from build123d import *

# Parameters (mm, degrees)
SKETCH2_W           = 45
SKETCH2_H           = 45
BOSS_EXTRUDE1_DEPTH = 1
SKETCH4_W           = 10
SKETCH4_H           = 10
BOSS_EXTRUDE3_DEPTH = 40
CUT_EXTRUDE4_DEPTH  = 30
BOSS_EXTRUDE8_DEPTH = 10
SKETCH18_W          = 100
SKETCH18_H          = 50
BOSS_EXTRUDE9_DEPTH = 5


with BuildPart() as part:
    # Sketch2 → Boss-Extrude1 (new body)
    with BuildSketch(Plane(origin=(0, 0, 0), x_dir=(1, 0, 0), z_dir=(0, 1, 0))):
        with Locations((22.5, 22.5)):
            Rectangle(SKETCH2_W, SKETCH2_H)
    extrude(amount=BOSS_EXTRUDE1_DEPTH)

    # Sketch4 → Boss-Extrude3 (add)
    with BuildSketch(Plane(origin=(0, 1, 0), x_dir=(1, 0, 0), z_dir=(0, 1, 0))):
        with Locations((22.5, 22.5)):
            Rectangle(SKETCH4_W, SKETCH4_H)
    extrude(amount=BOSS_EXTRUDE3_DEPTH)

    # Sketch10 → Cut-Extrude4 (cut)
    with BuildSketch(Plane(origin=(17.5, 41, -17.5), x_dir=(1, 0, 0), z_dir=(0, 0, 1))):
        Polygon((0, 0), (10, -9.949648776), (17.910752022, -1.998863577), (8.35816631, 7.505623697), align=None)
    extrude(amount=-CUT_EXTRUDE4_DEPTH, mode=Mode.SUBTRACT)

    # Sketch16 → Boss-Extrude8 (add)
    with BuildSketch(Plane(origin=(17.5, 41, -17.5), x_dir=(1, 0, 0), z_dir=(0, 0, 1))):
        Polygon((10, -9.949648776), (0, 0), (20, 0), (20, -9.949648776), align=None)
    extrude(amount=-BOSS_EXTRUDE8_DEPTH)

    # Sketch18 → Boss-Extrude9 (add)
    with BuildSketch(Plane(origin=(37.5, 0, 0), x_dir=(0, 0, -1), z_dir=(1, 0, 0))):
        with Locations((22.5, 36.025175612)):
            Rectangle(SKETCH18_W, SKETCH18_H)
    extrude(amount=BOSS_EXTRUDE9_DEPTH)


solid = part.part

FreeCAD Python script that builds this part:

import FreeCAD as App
import Part
import Sketcher
from FreeCAD import Vector


def add_polygon(sketch, points):
    """Adds a closed chain of lines whose ends are joined by coincident constraints."""
    first, n = sketch.GeometryCount, len(points)
    for a, b in zip(points, points[1:] + points[:1]):
        sketch.addGeometry(Part.LineSegment(App.Vector(*a, 0), App.Vector(*b, 0)), False)
    for i in range(n):
        sketch.addConstraint(Sketcher.Constraint("Coincident", first + i, 2, first + (i + 1) % n, 1))

doc = App.newDocument("Part")
body = doc.addObject("PartDesign::Body", "Body")

sketch1 = body.newObject("Sketcher::SketchObject", "Sketch")
sketch1.AttachmentSupport = (doc.getObject("XZ_Plane"), [""])
sketch1.MapMode = "FlatFace"
add_polygon(sketch1, [(0, -45), (0, 0), (45, 0), (45, -45)])
sketch1.addConstraint([
    Sketcher.Constraint("Vertical", 0),
    Sketcher.Constraint("Horizontal", 1),
    Sketcher.Constraint("Vertical", 2),
    Sketcher.Constraint("Horizontal", 3),
    Sketcher.Constraint("Coincident", 0, 2, -1, 1),
    Sketcher.Constraint("Equal", 3, 0),
    Sketcher.Constraint("DistanceX", 1, 1, 1, 2, 45.0),
])
pad1 = body.newObject("PartDesign::Pad", "Pad")
pad1.Profile = sketch1
pad1.Length = 1
pad1.Reversed = True

sketch2 = body.newObject("Sketcher::SketchObject", "Sketch001")
sketch2.AttachmentSupport = (doc.getObject("XZ_Plane"), [""])
sketch2.MapMode = "FlatFace"
sketch2.AttachmentOffset = App.Placement(Vector(0, 0, -1), App.Rotation())
add_polygon(sketch2, [(18, -28), (18, -18), (28, -18), (28, -28)])
sketch2.addConstraint([
    Sketcher.Constraint("Vertical", 0),
    Sketcher.Constraint("Horizontal", 1),
    Sketcher.Constraint("Vertical", 2),
    Sketcher.Constraint("Horizontal", 3),
    Sketcher.Constraint("Equal", 3, 0),
    Sketcher.Constraint("DistanceX", 1, 1, 1, 2, 10.0),
    Sketcher.Constraint("DistanceX", -1, 1, 0, 2, 17.5),
    Sketcher.Constraint("DistanceY", 0, 2, -1, 1, 17.5),
])
pad2 = body.newObject("PartDesign::Pad", "Pad001")
pad2.Profile = sketch2
pad2.Length = 40
pad2.Reversed = True

sketch3 = body.newObject("Sketcher::SketchObject", "Sketch002")
sketch3.AttachmentSupport = (doc.getObject("XY_Plane"), [""])
sketch3.MapMode = "FlatFace"
sketch3.AttachmentOffset = App.Placement(Vector(0, 0, -17.5), App.Rotation())
add_polygon(sketch3, [(18, 41), (28, 31), (35, 39), (26, 49)])
sketch3.addConstraint([
    Sketcher.Constraint("Perpendicular", 0, 1),
    Sketcher.Constraint("Perpendicular", 1, 2),
    Sketcher.Constraint("DistanceY", -1, 1, 3, 2, 41.0),
    Sketcher.Constraint("DistanceX", 3, 2, 0, 2, 10.0),
    Sketcher.Constraint("DistanceX", -1, 1, 0, 2, 27.5),
    Sketcher.Constraint("Distance", 2, 13.475428),
    Sketcher.Constraint("Distance", 3, 11.233581),
    Sketcher.Constraint("DistanceY", -1, 1, 0, 2, 31.050351),
])
pocket1 = body.newObject("PartDesign::Pocket", "Pocket")
pocket1.Profile = sketch3
pocket1.Length = 30

sketch4 = body.newObject("Sketcher::SketchObject", "Sketch003")
sketch4.AttachmentSupport = (doc.getObject("XY_Plane"), [""])
sketch4.MapMode = "FlatFace"
sketch4.AttachmentOffset = App.Placement(Vector(0, 0, -17.5), App.Rotation())
add_polygon(sketch4, [(18, 41), (28, 31), (38, 31), (38, 41)])
sketch4.addConstraint([
    Sketcher.Constraint("Horizontal", 1),
    Sketcher.Constraint("Vertical", 2),
    Sketcher.Constraint("Horizontal", 3),
    Sketcher.Constraint("DistanceX", 1, 1, 1, 2, 10.0),
    Sketcher.Constraint("DistanceX", 3, 2, 3, 1, 20.0),
    Sketcher.Constraint("DistanceY", -1, 1, 2, 2, 41.0),
    Sketcher.Constraint("DistanceX", -1, 1, 0, 2, 27.5),
    Sketcher.Constraint("DistanceY", 2, 1, 2, 2, 9.949649),
])
pad3 = body.newObject("PartDesign::Pad", "Pad002")
pad3.Profile = sketch4
pad3.Length = 10
pad3.Reversed = True

sketch5 = body.newObject("Sketcher::SketchObject", "Sketch004")
sketch5.AttachmentSupport = (doc.getObject("YZ_Plane"), [""])
sketch5.MapMode = "FlatFace"
sketch5.AttachmentOffset = App.Placement(Vector(0, 0, 37.5), App.Rotation())
add_polygon(sketch5, [(61, 28), (11, 28), (11, -72), (61, -72)])
sketch5.addConstraint([
    Sketcher.Constraint("Horizontal", 0),
    Sketcher.Constraint("Vertical", 1),
    Sketcher.Constraint("Horizontal", 2),
    Sketcher.Constraint("Vertical", 3),
    Sketcher.Constraint("DistanceX", 0, 2, 0, 1, 50.0),
    Sketcher.Constraint("DistanceY", 1, 2, 1, 1, 100.0),
    Sketcher.Constraint("DistanceY", -1, 1, 0, 2, 27.5),
    Sketcher.Constraint("DistanceX", -1, 1, 0, 2, 11.025176),
])
pad4 = body.newObject("PartDesign::Pad", "Pad003")
pad4.Profile = sketch5
pad4.Length = 5

doc.recompute()
